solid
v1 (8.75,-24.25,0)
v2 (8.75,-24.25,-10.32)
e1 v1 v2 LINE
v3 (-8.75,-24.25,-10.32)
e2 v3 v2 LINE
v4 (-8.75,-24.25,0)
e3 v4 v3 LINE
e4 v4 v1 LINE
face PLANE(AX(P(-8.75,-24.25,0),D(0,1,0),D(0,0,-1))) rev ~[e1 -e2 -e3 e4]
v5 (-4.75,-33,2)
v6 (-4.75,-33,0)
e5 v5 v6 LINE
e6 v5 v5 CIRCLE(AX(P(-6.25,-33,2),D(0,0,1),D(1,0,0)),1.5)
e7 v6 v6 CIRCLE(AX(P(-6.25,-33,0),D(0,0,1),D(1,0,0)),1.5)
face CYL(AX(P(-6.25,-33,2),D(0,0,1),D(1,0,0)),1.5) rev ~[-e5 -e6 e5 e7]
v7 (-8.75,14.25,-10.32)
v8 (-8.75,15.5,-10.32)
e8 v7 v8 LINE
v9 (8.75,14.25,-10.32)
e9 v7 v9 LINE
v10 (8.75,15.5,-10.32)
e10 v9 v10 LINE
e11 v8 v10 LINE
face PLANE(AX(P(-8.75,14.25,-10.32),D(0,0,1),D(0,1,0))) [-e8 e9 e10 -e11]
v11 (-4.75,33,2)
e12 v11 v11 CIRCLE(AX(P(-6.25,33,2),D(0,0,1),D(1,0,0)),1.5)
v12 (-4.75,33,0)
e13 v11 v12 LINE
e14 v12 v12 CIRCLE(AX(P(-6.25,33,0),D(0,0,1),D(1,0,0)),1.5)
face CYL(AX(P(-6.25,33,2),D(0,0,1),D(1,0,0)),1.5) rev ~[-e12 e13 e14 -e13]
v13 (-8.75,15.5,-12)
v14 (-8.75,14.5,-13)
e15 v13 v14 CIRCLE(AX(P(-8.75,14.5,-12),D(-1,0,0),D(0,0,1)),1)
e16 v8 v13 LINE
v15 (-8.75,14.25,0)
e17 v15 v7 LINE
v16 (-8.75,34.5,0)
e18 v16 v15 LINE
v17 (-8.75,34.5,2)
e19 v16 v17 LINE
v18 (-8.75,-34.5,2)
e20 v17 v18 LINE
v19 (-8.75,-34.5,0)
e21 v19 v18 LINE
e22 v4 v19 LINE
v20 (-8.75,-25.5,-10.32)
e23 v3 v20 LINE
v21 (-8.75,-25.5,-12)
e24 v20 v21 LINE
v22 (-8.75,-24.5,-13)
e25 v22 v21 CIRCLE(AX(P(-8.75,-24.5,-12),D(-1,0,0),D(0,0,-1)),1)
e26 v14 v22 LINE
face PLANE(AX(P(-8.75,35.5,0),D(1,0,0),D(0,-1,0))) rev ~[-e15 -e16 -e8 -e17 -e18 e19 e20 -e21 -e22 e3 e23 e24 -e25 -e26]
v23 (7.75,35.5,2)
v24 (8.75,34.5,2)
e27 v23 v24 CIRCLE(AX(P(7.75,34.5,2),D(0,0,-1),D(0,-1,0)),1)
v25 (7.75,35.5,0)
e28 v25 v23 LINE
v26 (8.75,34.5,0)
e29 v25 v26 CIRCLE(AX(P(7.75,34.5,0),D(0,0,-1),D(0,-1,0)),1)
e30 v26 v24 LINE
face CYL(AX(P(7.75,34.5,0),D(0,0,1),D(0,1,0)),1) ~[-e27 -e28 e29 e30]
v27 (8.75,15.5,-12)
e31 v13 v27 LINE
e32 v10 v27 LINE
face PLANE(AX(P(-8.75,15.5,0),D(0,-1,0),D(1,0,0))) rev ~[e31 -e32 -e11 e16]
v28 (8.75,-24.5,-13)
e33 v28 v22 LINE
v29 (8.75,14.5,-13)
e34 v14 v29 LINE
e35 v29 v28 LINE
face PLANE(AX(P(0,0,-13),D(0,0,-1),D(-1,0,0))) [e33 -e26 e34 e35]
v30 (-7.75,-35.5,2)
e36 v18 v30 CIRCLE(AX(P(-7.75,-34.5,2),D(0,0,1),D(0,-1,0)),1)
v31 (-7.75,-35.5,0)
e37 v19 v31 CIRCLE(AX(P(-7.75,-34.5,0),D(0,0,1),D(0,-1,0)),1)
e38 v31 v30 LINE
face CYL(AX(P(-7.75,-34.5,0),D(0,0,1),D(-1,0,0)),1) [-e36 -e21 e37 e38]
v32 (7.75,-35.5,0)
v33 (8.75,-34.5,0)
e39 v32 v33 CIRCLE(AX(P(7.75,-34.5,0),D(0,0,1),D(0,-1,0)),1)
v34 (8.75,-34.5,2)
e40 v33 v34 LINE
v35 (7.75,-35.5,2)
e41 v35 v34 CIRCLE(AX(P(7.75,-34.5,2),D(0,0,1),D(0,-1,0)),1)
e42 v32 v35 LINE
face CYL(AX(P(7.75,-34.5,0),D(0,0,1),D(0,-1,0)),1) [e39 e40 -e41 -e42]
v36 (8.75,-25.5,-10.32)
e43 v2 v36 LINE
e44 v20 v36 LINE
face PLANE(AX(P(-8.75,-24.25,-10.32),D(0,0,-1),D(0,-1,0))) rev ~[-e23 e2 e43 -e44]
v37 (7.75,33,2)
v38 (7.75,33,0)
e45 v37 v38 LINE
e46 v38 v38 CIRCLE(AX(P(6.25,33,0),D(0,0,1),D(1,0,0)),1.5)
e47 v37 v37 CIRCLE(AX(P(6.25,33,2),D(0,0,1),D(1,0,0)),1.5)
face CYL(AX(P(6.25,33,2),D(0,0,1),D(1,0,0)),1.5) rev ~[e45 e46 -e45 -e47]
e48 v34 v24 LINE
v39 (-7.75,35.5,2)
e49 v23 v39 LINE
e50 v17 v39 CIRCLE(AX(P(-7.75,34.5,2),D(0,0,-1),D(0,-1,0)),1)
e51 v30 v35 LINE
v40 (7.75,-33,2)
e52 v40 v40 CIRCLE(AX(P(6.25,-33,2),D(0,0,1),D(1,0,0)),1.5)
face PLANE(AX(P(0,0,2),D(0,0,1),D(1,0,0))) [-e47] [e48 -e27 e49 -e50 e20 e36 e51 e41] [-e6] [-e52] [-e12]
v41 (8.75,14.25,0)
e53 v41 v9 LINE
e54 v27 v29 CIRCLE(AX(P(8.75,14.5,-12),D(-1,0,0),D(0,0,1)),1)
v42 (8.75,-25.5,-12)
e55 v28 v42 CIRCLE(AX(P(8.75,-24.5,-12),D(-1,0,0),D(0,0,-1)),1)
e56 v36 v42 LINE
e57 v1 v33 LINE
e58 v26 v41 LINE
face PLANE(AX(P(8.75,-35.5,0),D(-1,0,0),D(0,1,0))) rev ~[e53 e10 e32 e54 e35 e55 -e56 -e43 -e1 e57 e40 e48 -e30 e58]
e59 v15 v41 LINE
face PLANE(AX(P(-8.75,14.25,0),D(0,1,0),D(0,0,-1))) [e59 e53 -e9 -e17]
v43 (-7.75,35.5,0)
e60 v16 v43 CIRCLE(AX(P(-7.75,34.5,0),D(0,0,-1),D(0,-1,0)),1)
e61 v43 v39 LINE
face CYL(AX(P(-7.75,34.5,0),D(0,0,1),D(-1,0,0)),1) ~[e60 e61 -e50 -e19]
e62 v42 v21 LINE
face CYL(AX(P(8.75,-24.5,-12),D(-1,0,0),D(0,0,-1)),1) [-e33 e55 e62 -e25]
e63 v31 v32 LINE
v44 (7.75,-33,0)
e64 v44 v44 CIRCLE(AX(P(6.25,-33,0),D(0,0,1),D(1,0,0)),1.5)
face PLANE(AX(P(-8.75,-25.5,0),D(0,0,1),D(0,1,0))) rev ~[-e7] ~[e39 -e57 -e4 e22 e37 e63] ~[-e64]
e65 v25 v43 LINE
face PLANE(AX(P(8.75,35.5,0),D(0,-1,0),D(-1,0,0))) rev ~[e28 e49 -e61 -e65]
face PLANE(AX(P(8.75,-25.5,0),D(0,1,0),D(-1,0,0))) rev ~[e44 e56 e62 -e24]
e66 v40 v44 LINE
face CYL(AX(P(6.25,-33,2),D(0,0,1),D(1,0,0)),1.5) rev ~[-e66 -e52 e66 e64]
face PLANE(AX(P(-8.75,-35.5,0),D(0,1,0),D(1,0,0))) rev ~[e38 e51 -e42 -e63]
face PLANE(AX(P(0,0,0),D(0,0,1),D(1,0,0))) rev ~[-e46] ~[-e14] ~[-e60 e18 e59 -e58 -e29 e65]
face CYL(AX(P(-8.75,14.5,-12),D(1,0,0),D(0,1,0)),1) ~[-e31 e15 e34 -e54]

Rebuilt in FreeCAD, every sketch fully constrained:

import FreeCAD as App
import Part
import Sketcher

V = App.Vector


def edges_at(feature, points):
    """Names of the edges that pass closest to the given points."""
    edges = feature.Shape.Edges
    near = lambda p: min(range(len(edges)), key=lambda i: edges[i].distToShape(Part.Vertex(*p))[0])
    return sorted({f"Edge{near(p) + 1}" for p in points})

doc = App.newDocument("Part")
params = doc.addObject("Spreadsheet::Sheet", "Params")
for row, (alias, value) in enumerate([
    ("sketch1_height", "71 mm"),
    ("sketch1_width", "17.5 mm"),
    ("pad1_length", "2 mm"),
    ("sketch2_diameter", "3 mm"),
    ("pocket1_length", "2 mm"),
    ("sketch3_height", "41 mm"),
    ("sketch3_width", "17.5 mm"),
    ("pad2_length", "13 mm"),
    ("sketch4_width", "1.25 mm"),
    ("sketch4_height", "10.32 mm"),
    ("pocket2_length", "17.5 mm"),
    ("fillet_radius", "1 mm"),
], start=1):
    params.set(f"A{row}", alias)
    params.set(f"B{row}", "=" + value)
    params.setAlias(f"B{row}", alias)

body = doc.addObject("PartDesign::Body", "Body")

sketch1 = doc.addObject("Sketcher::SketchObject", "Sketch")
body.addObject(sketch1)
sketch1.AttachmentSupport = (doc.XY_Plane, [""])
sketch1.MapMode = "FlatFace"
sketch1.addGeometry([
    Part.LineSegment(V(-9, 36, 0), V(-9, -36, 0)),
    Part.LineSegment(V(-9, -36, 0), V(9, -36, 0)),
    Part.LineSegment(V(9, -36, 0), V(9, 36, 0)),
    Part.LineSegment(V(9, 36, 0), V(-9, 36, 0)),
], False)
sketch1.addConstraint([
    Sketcher.Constraint("Coincident", 0, 2, 1, 1),
    Sketcher.Constraint("Coincident", 1, 2, 2, 1),
    Sketcher.Constraint("Coincident", 2, 2, 3, 1),
    Sketcher.Constraint("Coincident", 3, 2, 0, 1),
    Sketcher.Constraint("Vertical", 0),
    Sketcher.Constraint("Horizontal", 1),
    Sketcher.Constraint("Vertical", 2),
    Sketcher.Constraint("Horizontal", 3),
    Sketcher.Constraint("Symmetric", 0, 2, 2, 2, -1, 1),
    Sketcher.Constraint("DistanceY", 0, 2, 0, 1, 71.0),
    Sketcher.Constraint("DistanceX", 1, 1, 1, 2, 17.5),
])
sketch1.setExpression("Constraints[9]", "Params.sketch1_height")
sketch1.setExpression("Constraints[10]", "Params.sketch1_width")
pad1 = doc.addObject("PartDesign::Pad", "Pad")
body.addObject(pad1)
pad1.Profile = sketch1
pad1.setExpression("Length", "Params.pad1_length")

sketch2 = doc.addObject("Sketcher::SketchObject", "Sketch001")
body.addObject(sketch2)
sketch2.AttachmentSupport = (doc.XY_Plane, [""])
sketch2.MapMode = "FlatFace"
sketch2.AttachmentOffset = App.Placement(V(0, 0, 2), App.Rotation())
sketch2.addGeometry([
    Part.Circle(V(-6.2, 33, 0), V(0, 0, 1), 1.5),
    Part.Circle(V(6.2, 33, 0), V(0, 0, 1), 1.5),
    Part.Circle(V(-6.2, -33, 0), V(0, 0, 1), 1.5),
    Part.Circle(V(6.2, -33, 0), V(0, 0, 1), 1.5),
], False)
sketch2.addConstraint([
    Sketcher.Constraint("Equal", 0, 1),
    Sketcher.Constraint("Equal", 1, 2),
    Sketcher.Constraint("Equal", 2, 3),
    Sketcher.Constraint("Symmetric", 1, 3, 2, 3, -1, 1),
    Sketcher.Constraint("Symmetric", 0, 3, 3, 3, -1, 1),
    Sketcher.Constraint("Symmetric", 0, 3, 1, 3, -2),
    Sketcher.Constraint("Diameter", 0, 3.0),
    Sketcher.Constraint("DistanceY", -1, 1, 0, 3, 33.0),
    Sketcher.Constraint("DistanceX", 0, 3, 1, 3, 12.5),
])
sketch2.setExpression("Constraints[6]", "Params.sketch2_diameter")
pocket1 = doc.addObject("PartDesign::Pocket", "Pocket")
body.addObject(pocket1)
pocket1.Profile = sketch2
pocket1.setExpression("Length", "Params.pocket1_length")

sketch3 = doc.addObject("Sketcher::SketchObject", "Sketch002")
body.addObject(sketch3)
sketch3.AttachmentSupport = (doc.XY_Plane, [""])
sketch3.MapMode = "FlatFace"
sketch3.addGeometry([
    Part.LineSegment(V(-9, -26, 0), V(-9, 16, 0)),
    Part.LineSegment(V(-9, 16, 0), V(9, 16, 0)),
    Part.LineSegment(V(9, 16, 0), V(9, -26, 0)),
    Part.LineSegment(V(9, -26, 0), V(-9, -26, 0)),
], False)
sketch3.addConstraint([
    Sketcher.Constraint("Coincident", 0, 2, 1, 1),
    Sketcher.Constraint("Coincident", 1, 2, 2, 1),
    Sketcher.Constraint("Coincident", 2, 2, 3, 1),
    Sketcher.Constraint("Coincident", 3, 2, 0, 1),
    Sketcher.Constraint("Vertical", 0),
    Sketcher.Constraint("Horizontal", 1),
    Sketcher.Constraint("Vertical", 2),
    Sketcher.Constraint("Horizontal", 3),
    Sketcher.Constraint("DistanceY", 0, 1, 0, 2, 41.0),
    Sketcher.Constraint("DistanceX", 1, 1, 1, 2, 17.5),
    Sketcher.Constraint("DistanceY", -1, 1, 0, 2, 15.5),
    Sketcher.Constraint("DistanceX", 0, 2, -1, 1, 8.75),
])
sketch3.setExpression("Constraints[8]", "Params.sketch3_height")
sketch3.setExpression("Constraints[9]", "Params.sketch3_width")
pad2 = doc.addObject("PartDesign::Pad", "Pad001")
body.addObject(pad2)
pad2.Profile = sketch3
pad2.setExpression("Length", "Params.pad2_length")
pad2.Reversed = True

sketch4 = doc.addObject("Sketcher::SketchObject", "Sketch003")
body.addObject(sketch4)
sketch4.AttachmentSupport = (doc.YZ_Plane, [""])
sketch4.MapMode = "FlatFace"
sketch4.AttachmentOffset = App.Placement(V(0, 0, -8.75), App.Rotation())
sketch4.addGeometry([
    Part.LineSegment(V(15.5, 0, 0), V(15.5, -10.3, 0)),
    Part.LineSegment(V(15.5, -10.3, 0), V(14.2, -10.3, 0)),
    Part.LineSegment(V(14.2, -10.3, 0), V(14.2, 0, 0)),
    Part.LineSegment(V(14.2, 0, 0), V(15.5, 0, 0)),
    Part.LineSegment(V(-25.5, -10.3, 0), V(-25.5, 0, 0)),
    Part.LineSegment(V(-25.5, 0, 0), V(-24.2, 0, 0)),
    Part.LineSegment(V(-24.2, 0, 0), V(-24.2, -10.3, 0)),
    Part.LineSegment(V(-24.2, -10.3, 0), V(-25.5, -10.3, 0)),
], False)
sketch4.addConstraint([
    Sketcher.Constraint("Coincident", 0, 2, 1, 1),
    Sketcher.Constraint("Coincident", 1, 2, 2, 1),
    Sketcher.Constraint("Coincident", 2, 2, 3, 1),
    Sketcher.Constraint("Coincident", 3, 2, 0, 1),
    Sketcher.Constraint("Coincident", 4, 2, 5, 1),
    Sketcher.Constraint("Coincident", 5, 2, 6, 1),
    Sketcher.Constraint("Coincident", 6, 2, 7, 1),
    Sketcher.Constraint("Coincident", 7, 2, 4, 1),
    Sketcher.Constraint("Vertical", 0),
    Sketcher.Constraint("Horizontal", 1),
    Sketcher.Constraint("Vertical", 2),
    Sketcher.Constraint("Horizontal", 3),
    Sketcher.Constraint("Vertical", 4),
    Sketcher.Constraint("Horizontal", 5),
    Sketcher.Constraint("Vertical", 6),
    Sketcher.Constraint("Horizontal", 7),
    Sketcher.Constraint("PointOnObject", 2, 2, -1),
    Sketcher.Constraint("PointOnObject", 4, 2, -1),
    Sketcher.Constraint("Horizontal", 1, 2, 6, 2),
    Sketcher.Constraint("Equal", 3, 5),
    Sketcher.Constraint("DistanceX", 1, 2, 1, 1, 1.25),
    Sketcher.Constraint("DistanceX", 4, 2, 3, 2, 41.0),
    Sketcher.Constraint("DistanceY", 0, 2, 0, 1, 10.32),
    Sketcher.Constraint("DistanceX", -1, 1, 0, 2, 15.5),
])
sketch4.setExpression("Constraints[20]", "Params.sketch4_width")
sketch4.setExpression("Constraints[22]", "Params.sketch4_height")
pocket2 = doc.addObject("PartDesign::Pocket", "Pocket001")
body.addObject(pocket2)
pocket2.Profile = sketch4
pocket2.setExpression("Length", "Params.pocket2_length")
pocket2.Reversed = True
doc.recompute()

fillet = doc.addObject("PartDesign::Fillet", "Fillet")
body.addObject(fillet)
fillet.Base = (pocket2, edges_at(pocket2, [
    (-8.75, -35.5, 1),
    (8.75, -35.5, 1),
    (8.75, 35.5, 1),
    (-8.75, 35.5, 1),
    (0, 15.5, -13),
    (0, -25.5, -13),
]))
fillet.setExpression("Radius", "Params.fillet_radius")

doc.recompute()
